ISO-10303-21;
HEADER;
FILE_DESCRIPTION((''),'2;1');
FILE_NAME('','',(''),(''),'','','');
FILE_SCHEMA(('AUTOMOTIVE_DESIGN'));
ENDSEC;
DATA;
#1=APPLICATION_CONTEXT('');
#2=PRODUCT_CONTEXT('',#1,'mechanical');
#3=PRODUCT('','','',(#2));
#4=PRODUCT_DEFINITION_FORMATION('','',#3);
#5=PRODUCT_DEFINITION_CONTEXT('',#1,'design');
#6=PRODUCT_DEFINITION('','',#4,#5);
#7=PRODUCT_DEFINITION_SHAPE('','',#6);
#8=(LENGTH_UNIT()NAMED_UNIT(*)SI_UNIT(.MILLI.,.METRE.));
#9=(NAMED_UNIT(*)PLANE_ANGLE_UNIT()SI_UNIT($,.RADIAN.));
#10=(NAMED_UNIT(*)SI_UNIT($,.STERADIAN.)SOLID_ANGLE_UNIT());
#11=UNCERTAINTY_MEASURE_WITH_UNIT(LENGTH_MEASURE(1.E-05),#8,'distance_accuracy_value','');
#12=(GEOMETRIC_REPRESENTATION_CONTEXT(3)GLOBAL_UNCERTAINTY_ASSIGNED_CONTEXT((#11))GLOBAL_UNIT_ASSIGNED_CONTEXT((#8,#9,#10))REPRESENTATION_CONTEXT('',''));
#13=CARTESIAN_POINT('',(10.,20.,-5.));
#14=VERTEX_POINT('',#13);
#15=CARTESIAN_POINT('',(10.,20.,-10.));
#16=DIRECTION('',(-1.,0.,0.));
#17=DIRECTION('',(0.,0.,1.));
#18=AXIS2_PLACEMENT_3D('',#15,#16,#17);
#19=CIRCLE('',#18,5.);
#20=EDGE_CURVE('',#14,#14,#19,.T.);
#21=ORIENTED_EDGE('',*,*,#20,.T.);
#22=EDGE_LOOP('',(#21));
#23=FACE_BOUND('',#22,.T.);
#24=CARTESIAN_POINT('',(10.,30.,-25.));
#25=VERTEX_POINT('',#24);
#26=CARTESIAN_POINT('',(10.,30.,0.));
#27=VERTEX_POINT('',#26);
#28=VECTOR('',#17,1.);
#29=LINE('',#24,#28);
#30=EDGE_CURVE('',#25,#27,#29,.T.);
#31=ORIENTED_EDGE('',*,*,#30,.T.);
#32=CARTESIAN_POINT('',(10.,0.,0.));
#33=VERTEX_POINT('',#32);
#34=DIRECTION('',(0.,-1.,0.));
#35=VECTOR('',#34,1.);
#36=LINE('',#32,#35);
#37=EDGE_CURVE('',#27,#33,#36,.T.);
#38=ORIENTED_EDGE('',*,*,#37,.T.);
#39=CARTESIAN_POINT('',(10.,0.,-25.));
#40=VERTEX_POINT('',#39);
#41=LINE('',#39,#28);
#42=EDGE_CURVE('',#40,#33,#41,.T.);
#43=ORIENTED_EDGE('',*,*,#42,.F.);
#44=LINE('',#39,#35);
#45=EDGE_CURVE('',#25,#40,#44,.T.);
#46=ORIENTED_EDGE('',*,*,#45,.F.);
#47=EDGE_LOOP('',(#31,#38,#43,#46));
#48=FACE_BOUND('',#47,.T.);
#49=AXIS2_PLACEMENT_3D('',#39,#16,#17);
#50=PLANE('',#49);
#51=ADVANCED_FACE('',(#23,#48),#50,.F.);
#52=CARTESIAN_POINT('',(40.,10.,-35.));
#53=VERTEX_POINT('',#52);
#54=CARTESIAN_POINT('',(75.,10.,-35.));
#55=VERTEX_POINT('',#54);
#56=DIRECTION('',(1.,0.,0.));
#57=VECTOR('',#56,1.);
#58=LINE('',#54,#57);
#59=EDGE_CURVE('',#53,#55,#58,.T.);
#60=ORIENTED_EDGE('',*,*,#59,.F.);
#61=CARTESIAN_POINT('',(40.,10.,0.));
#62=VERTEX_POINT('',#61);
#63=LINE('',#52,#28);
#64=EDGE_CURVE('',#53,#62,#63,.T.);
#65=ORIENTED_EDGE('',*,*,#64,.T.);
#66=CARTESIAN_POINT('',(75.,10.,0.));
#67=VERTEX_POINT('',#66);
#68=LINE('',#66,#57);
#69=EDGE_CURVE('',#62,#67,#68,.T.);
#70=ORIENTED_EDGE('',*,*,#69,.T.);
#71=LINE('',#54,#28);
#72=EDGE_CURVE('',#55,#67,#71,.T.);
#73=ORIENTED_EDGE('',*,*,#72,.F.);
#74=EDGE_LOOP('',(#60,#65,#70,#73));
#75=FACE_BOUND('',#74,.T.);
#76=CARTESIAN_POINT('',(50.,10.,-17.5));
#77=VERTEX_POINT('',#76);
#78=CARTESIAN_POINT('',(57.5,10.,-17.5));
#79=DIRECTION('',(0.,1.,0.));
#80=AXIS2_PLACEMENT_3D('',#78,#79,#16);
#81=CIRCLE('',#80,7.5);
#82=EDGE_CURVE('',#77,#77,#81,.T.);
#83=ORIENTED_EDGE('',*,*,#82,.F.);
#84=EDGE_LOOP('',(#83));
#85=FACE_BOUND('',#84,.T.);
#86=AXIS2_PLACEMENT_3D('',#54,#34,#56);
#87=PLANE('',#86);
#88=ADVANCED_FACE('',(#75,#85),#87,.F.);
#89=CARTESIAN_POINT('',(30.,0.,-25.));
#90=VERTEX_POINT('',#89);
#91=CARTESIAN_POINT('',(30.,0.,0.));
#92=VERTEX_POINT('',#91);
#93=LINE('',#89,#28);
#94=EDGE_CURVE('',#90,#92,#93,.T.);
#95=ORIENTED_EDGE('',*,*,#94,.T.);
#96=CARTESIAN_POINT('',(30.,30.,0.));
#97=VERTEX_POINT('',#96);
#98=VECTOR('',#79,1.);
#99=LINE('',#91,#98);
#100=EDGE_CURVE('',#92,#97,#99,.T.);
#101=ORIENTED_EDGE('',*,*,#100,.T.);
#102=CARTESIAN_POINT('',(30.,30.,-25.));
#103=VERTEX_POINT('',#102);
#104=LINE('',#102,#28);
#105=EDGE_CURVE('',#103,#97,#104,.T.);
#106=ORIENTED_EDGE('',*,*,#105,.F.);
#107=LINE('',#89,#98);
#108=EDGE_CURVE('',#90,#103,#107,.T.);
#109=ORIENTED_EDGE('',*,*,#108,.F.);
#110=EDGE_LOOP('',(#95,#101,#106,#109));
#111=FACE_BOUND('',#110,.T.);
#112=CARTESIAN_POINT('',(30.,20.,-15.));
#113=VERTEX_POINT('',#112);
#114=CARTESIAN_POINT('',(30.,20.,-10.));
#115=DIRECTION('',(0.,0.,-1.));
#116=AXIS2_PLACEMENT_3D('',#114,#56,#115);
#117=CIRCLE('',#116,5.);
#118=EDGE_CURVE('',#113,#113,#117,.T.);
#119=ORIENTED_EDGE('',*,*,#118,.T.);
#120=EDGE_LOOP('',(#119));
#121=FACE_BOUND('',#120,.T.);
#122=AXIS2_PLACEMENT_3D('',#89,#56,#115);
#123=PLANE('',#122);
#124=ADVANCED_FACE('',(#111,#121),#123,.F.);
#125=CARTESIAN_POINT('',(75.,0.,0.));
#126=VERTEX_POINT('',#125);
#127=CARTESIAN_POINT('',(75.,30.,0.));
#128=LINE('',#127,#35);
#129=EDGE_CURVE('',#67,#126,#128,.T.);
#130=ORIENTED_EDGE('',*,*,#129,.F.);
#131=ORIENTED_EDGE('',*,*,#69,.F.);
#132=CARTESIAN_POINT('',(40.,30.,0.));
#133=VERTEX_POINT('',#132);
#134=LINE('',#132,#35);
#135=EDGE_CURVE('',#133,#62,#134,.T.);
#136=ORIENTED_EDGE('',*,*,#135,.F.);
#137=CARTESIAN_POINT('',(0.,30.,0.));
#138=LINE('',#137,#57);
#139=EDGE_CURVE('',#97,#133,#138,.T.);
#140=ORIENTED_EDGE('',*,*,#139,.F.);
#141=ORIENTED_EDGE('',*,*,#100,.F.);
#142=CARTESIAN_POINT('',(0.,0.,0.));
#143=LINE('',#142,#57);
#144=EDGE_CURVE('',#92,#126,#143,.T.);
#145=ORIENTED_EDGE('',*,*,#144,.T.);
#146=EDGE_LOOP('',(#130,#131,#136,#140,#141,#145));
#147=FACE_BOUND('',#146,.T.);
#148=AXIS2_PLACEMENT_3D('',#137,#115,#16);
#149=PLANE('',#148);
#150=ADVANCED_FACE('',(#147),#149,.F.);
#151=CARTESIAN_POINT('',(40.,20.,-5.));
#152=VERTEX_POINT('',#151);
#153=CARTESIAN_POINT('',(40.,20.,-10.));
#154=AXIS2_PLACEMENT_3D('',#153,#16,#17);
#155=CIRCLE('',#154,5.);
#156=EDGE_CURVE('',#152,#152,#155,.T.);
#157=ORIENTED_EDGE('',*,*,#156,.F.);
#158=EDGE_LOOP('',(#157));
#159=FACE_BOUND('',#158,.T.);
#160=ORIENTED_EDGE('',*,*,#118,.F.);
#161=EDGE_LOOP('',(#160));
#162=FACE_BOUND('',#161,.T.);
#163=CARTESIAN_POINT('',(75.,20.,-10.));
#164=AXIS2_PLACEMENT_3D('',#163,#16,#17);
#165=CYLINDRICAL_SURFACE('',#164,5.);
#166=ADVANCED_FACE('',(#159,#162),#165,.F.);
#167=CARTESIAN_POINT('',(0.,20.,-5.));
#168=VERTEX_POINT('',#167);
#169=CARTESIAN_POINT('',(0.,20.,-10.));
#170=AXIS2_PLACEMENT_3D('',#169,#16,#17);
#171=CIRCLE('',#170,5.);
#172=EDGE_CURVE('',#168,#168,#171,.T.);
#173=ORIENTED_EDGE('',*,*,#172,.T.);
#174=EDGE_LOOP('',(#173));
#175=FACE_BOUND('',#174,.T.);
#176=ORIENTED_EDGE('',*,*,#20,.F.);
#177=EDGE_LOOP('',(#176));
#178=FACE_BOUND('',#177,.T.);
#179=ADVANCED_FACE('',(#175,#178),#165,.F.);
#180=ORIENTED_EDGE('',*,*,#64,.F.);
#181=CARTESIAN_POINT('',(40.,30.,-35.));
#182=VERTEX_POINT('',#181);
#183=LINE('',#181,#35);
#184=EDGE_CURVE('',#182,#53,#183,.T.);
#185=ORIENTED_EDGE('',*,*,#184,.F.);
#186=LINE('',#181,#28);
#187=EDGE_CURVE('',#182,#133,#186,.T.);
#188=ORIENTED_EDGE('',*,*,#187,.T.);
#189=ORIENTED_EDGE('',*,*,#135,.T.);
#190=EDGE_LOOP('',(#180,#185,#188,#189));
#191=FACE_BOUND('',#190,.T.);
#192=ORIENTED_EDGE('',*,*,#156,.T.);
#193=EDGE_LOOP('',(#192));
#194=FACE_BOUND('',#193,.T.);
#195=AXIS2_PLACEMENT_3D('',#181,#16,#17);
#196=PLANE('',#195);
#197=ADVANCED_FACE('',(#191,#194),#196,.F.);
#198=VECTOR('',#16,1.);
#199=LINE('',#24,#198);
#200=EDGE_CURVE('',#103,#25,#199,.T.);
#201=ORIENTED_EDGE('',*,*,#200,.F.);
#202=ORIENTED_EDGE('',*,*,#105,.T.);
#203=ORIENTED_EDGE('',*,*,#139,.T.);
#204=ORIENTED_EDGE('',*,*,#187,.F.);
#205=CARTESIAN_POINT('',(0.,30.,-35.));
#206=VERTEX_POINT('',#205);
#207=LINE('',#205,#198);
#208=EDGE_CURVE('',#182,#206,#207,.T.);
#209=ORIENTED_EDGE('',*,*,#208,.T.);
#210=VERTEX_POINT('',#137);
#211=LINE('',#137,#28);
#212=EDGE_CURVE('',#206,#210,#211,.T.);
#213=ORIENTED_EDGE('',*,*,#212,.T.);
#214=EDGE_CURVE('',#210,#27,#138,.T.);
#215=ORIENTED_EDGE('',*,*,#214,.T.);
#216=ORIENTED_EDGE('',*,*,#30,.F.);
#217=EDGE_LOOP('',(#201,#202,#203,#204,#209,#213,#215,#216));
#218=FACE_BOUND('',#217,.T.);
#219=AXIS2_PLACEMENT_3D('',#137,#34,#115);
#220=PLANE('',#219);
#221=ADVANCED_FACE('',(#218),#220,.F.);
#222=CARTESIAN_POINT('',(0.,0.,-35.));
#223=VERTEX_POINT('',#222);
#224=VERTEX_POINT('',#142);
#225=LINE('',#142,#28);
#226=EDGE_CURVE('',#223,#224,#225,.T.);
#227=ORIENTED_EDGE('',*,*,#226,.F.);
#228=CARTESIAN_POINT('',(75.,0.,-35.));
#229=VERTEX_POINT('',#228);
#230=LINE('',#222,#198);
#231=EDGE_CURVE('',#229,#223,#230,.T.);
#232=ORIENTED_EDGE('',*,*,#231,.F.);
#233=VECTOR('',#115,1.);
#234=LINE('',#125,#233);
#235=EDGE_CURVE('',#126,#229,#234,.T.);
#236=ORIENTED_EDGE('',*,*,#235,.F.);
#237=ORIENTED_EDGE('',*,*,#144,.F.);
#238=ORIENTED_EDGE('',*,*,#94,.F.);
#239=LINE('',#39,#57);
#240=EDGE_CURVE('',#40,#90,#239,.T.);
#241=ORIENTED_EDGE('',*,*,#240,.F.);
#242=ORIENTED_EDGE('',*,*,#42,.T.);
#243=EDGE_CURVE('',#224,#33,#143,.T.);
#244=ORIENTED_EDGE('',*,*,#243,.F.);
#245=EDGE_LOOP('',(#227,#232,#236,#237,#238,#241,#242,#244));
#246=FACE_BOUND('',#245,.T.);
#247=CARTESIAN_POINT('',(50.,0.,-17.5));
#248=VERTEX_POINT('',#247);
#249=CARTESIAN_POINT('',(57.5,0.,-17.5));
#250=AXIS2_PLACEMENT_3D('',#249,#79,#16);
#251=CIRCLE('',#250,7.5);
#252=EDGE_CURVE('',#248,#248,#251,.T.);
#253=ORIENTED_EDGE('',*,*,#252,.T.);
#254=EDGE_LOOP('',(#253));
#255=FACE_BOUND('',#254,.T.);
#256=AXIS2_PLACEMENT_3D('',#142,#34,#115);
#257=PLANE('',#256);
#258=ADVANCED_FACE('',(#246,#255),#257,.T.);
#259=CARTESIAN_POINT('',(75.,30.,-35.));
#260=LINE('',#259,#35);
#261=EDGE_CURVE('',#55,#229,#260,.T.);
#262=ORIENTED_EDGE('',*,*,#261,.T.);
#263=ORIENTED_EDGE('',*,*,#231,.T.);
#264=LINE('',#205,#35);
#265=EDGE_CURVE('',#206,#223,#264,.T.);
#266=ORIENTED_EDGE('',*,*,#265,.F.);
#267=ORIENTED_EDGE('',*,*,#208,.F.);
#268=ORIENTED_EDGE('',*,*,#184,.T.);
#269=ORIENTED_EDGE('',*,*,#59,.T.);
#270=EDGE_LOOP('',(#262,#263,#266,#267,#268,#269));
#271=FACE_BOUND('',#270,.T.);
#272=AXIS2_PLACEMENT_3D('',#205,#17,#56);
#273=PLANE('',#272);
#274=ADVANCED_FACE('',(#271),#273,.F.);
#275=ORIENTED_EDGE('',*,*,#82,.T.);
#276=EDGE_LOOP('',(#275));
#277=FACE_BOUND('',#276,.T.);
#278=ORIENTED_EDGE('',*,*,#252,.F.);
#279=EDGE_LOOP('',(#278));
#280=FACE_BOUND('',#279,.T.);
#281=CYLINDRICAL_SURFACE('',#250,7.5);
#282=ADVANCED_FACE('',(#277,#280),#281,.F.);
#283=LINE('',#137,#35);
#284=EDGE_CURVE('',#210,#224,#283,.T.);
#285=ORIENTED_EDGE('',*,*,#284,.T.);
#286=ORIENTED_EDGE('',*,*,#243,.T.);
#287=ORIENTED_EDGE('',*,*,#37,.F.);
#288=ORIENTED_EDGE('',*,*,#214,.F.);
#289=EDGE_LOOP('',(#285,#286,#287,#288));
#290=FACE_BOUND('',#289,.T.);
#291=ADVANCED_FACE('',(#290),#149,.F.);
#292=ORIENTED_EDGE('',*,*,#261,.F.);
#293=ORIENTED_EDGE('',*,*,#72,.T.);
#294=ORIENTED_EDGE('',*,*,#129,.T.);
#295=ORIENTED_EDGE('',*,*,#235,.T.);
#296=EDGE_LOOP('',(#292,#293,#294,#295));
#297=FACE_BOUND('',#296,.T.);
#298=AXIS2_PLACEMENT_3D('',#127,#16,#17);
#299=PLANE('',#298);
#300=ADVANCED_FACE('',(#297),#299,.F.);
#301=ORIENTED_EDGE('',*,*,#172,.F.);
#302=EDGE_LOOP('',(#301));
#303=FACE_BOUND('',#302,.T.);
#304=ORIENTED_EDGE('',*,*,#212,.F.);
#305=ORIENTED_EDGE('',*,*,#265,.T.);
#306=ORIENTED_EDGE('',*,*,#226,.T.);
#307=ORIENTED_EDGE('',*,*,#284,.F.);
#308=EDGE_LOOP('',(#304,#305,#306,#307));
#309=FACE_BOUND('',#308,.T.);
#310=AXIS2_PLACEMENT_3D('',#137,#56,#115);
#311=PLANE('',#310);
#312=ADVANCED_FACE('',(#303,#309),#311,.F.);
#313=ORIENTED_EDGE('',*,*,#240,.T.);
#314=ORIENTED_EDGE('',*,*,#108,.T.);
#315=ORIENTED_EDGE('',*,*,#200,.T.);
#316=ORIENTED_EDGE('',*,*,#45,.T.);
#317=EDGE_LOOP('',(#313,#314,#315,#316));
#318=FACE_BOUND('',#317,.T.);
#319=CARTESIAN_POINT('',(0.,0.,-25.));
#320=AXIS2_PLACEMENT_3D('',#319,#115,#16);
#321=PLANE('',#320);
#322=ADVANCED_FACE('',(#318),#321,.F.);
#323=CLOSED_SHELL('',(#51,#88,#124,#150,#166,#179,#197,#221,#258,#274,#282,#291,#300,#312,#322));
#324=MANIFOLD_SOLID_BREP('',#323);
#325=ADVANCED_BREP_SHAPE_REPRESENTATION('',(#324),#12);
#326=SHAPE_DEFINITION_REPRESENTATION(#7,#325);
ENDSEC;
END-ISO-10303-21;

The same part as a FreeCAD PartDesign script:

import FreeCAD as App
import Part
import Sketcher
from FreeCAD import Vector
Q = App.Units.Quantity

doc = App.newDocument("Part")
body = doc.addObject("PartDesign::Body", "Body")

# Sketch on XZ plane
sketch1 = body.newObject("Sketcher::SketchObject", "Sketch")
sketch1.AttachmentSupport = (doc.getObject("XZ_Plane"), [""])
sketch1.MapMode = "FlatFace"
sketch1.addGeometry([
    Part.LineSegment(Vector(0, -35, 0), Vector(0, 0, 0)),
    Part.LineSegment(Vector(0, 0, 0), Vector(75, 0, 0)),
    Part.LineSegment(Vector(75, 0, 0), Vector(75, -35, 0)),
    Part.LineSegment(Vector(75, -35, 0), Vector(0, -35, 0)),
], False)
sketch1.addConstraint([
    Sketcher.Constraint("Coincident", 0, 2, 1, 1),
    Sketcher.Constraint("Coincident", 1, 2, 2, 1),
    Sketcher.Constraint("Coincident", 2, 2, 3, 1),
    Sketcher.Constraint("Coincident", 3, 2, 0, 1),
    Sketcher.Constraint("Vertical", 0),
    Sketcher.Constraint("Horizontal", 1),
    Sketcher.Constraint("Vertical", 2),
    Sketcher.Constraint("Horizontal", 3),
    Sketcher.Constraint("Coincident", 0, 2, -1, 1),
    Sketcher.Constraint("DistanceX", 1, 1, 1, 2, Q("75 mm")),
    Sketcher.Constraint("DistanceY", 0, 1, 0, 2, Q("35 mm")),
])
pad1 = body.newObject("PartDesign::Pad", "Pad")
pad1.Profile = sketch1
pad1.Length = 30
pad1.Reversed = True

# Sketch on XY plane
sketch2 = body.newObject("Sketcher::SketchObject", "Sketch001")
sketch2.AttachmentSupport = (doc.getObject("XY_Plane"), [""])
sketch2.MapMode = "FlatFace"
sketch2.addGeometry([
    Part.LineSegment(Vector(10, 30, 0), Vector(10, 0, 0)),
    Part.LineSegment(Vector(10, 0, 0), Vector(30, 0, 0)),
    Part.LineSegment(Vector(30, 0, 0), Vector(30, 30, 0)),
    Part.LineSegment(Vector(30, 30, 0), Vector(10, 30, 0)),
], False)
sketch2.addConstraint([
    Sketcher.Constraint("Coincident", 0, 2, 1, 1),
    Sketcher.Constraint("Coincident", 1, 2, 2, 1),
    Sketcher.Constraint("Coincident", 2, 2, 3, 1),
    Sketcher.Constraint("Coincident", 3, 2, 0, 1),
    Sketcher.Constraint("Vertical", 0),
    Sketcher.Constraint("Horizontal", 1),
    Sketcher.Constraint("Vertical", 2),
    Sketcher.Constraint("Horizontal", 3),
    Sketcher.Constraint("PointOnObject", 0, 2, -1),
    Sketcher.Constraint("DistanceX", 1, 1, 1, 2, Q("20 mm")),
    Sketcher.Constraint("DistanceY", 0, 2, 0, 1, Q("30 mm")),
    Sketcher.Constraint("DistanceX", -1, 1, 0, 2, Q("10 mm")),
])
pocket1 = body.newObject("PartDesign::Pocket", "Pocket")
pocket1.Profile = sketch2
pocket1.Length = 25

# Sketch on XY plane
sketch3 = body.newObject("Sketcher::SketchObject", "Sketch002")
sketch3.AttachmentSupport = (doc.getObject("XY_Plane"), [""])
sketch3.MapMode = "FlatFace"
sketch3.addGeometry([
    Part.LineSegment(Vector(40, 30, 0), Vector(40, 10, 0)),
    Part.LineSegment(Vector(40, 10, 0), Vector(75, 10, 0)),
    Part.LineSegment(Vector(75, 10, 0), Vector(75, 30, 0)),
    Part.LineSegment(Vector(75, 30, 0), Vector(40, 30, 0)),
], False)
sketch3.addConstraint([
    Sketcher.Constraint("Coincident", 0, 2, 1, 1),
    Sketcher.Constraint("Coincident", 1, 2, 2, 1),
    Sketcher.Constraint("Coincident", 2, 2, 3, 1),
    Sketcher.Constraint("Coincident", 3, 2, 0, 1),
    Sketcher.Constraint("Vertical", 0),
    Sketcher.Constraint("Horizontal", 1),
    Sketcher.Constraint("Vertical", 2),
    Sketcher.Constraint("Horizontal", 3),
    Sketcher.Constraint("DistanceX", 1, 1, 1, 2, Q("35 mm")),
    Sketcher.Constraint("DistanceY", 0, 2, 0, 1, Q("20 mm")),
    Sketcher.Constraint("DistanceX", -1, 1, 0, 2, Q("40 mm")),
    Sketcher.Constraint("DistanceY", -1, 1, 0, 2, Q("10 mm")),
])
pocket2 = body.newObject("PartDesign::Pocket", "Pocket001")
pocket2.Profile = sketch3
pocket2.Type = "ThroughAll"

# Sketch on XZ plane
sketch4 = body.newObject("Sketcher::SketchObject", "Sketch003")
sketch4.AttachmentSupport = (doc.getObject("XZ_Plane"), [""])
sketch4.MapMode = "FlatFace"
sketch4.AttachmentOffset = App.Placement(Vector(0, 0, -10), App.Rotation())
sketch4.addGeometry(Part.Circle(Vector(58, -18, 0), Vector(0, 0, 1), 8), False)
sketch4.addConstraint([
    Sketcher.Constraint("Diameter", 0, Q("15 mm")),
    Sketcher.Constraint("DistanceX", -1, 1, 0, 3, Q("57.5 mm")),
    Sketcher.Constraint("DistanceY", 0, 3, -1, 1, Q("17.5 mm")),
])
pocket3 = body.newObject("PartDesign::Pocket", "Pocket002")
pocket3.Profile = sketch4
pocket3.Type = "ThroughAll"
pocket3.Reversed = True

# Sketch on YZ plane
sketch5 = body.newObject("Sketcher::SketchObject", "Sketch004")
sketch5.AttachmentSupport = (doc.getObject("YZ_Plane"), [""])
sketch5.MapMode = "FlatFace"
sketch5.addGeometry(Part.Circle(Vector(20, -10, 0), Vector(0, 0, 1), 5), False)
sketch5.addConstraint([
    Sketcher.Constraint("Diameter", 0, Q("10 mm")),
    Sketcher.Constraint("DistanceX", -1, 1, 0, 3, Q("20 mm")),
    Sketcher.Constraint("DistanceY", 0, 3, -1, 1, Q("10 mm")),
])
pocket4 = body.newObject("PartDesign::Pocket", "Pocket003")
pocket4.Profile = sketch5
pocket4.Type = "ThroughAll"
pocket4.Reversed = True

doc.recompute()
